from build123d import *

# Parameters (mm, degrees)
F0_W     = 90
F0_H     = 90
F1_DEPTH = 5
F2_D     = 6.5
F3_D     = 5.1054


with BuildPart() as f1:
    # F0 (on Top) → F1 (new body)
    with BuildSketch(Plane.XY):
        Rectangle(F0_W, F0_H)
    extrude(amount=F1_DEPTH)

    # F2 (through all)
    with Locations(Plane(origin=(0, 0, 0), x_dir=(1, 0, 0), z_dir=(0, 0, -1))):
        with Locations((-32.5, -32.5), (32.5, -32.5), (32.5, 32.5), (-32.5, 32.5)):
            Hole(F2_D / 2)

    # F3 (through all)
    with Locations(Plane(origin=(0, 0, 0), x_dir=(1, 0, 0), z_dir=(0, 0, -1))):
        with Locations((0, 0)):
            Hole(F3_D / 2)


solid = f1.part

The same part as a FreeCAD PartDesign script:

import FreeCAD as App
import Part
import Sketcher
from FreeCAD import Vector

doc = App.newDocument("Part")
body = doc.addObject("PartDesign::Body", "Body")

sketch1 = body.newObject("Sketcher::SketchObject", "Sketch")
sketch1.AttachmentSupport = (doc.getObject("XY_Plane"), [""])
sketch1.MapMode = "FlatFace"
sketch1.addGeometry([
    Part.LineSegment(Vector(-45, 45, 0), Vector(-45, -45, 0)),
    Part.LineSegment(Vector(-45, -45, 0), Vector(45, -45, 0)),
    Part.LineSegment(Vector(45, -45, 0), Vector(45, 45, 0)),
    Part.LineSegment(Vector(45, 45, 0), Vector(-45, 45, 0)),
], False)
sketch1.addConstraint([
    Sketcher.Constraint("Coincident", 0, 2, 1, 1),
    Sketcher.Constraint("Coincident", 1, 2, 2, 1),
    Sketcher.Constraint("Coincident", 2, 2, 3, 1),
    Sketcher.Constraint("Coincident", 3, 2, 0, 1),
    Sketcher.Constraint("Vertical", 0),
    Sketcher.Constraint("Horizontal", 1),
    Sketcher.Constraint("Vertical", 2),
    Sketcher.Constraint("Horizontal", 3),
    Sketcher.Constraint("Symmetric", 0, 2, 2, 2, -1, 1),
    Sketcher.Constraint("Equal", 3, 0),
    Sketcher.Constraint("DistanceX", 1, 1, 1, 2, 90.0),
])
pad1 = body.newObject("PartDesign::Pad", "Pad")
pad1.Profile = sketch1
pad1.Length = 5

sketch2 = body.newObject("Sketcher::SketchObject", "Sketch001")
sketch2.AttachmentSupport = (doc.getObject("XY_Plane"), [""])
sketch2.MapMode = "FlatFace"
sketch2.addGeometry([
    Part.Circle(Vector(-32.5, 32.5, 0), Vector(0, 0, 1), 3.2),
    Part.Circle(Vector(32.5, 32.5, 0), Vector(0, 0, 1), 3.2),
    Part.Circle(Vector(32.5, -32.5, 0), Vector(0, 0, 1), 3.2),
    Part.Circle(Vector(-32.5, -32.5, 0), Vector(0, 0, 1), 3.2),
], False)
sketch2.addConstraint([
    Sketcher.Constraint("Equal", 0, 1),
    Sketcher.Constraint("Equal", 1, 2),
    Sketcher.Constraint("Equal", 2, 3),
    Sketcher.Constraint("Symmetric", 0, 3, 2, 3, -1, 1),
    Sketcher.Constraint("Symmetric", 1, 3, 3, 3, -1, 1),
    Sketcher.Constraint("Symmetric", 0, 3, 1, 3, -2),
    Sketcher.Constraint("Diameter", 0, 6.5),
    Sketcher.Constraint("DistanceX", 0, 3, 1, 3, 65.0),
    Sketcher.Constraint("DistanceY", 2, 3, 1, 3, 65.0),
])
doc.recompute()
hole = body.newObject("PartDesign::Hole", "Hole")
hole.Profile = sketch2
hole.ThreadType = "None"
hole.Diameter = 6.5
hole.DepthType = "ThroughAll"
hole.Reversed = True

sketch3 = body.newObject("Sketcher::SketchObject", "Sketch002")
sketch3.AttachmentSupport = (doc.getObject("XY_Plane"), [""])
sketch3.MapMode = "FlatFace"
sketch3.addGeometry(Part.Circle(Vector(0, 0, 0), Vector(0, 0, 1), 2.6), False)
sketch3.addConstraint([
    Sketcher.Constraint("Coincident", 0, 3, -1, 1),
    Sketcher.Constraint("Diameter", 0, 5.1054),
])
doc.recompute()
hole2 = body.newObject("PartDesign::Hole", "Hole001")
hole2.Profile = sketch3
hole2.ThreadType = "None"
hole2.Diameter = 5.1054
hole2.DepthType = "ThroughAll"
hole2.Reversed = True

doc.recompute()
